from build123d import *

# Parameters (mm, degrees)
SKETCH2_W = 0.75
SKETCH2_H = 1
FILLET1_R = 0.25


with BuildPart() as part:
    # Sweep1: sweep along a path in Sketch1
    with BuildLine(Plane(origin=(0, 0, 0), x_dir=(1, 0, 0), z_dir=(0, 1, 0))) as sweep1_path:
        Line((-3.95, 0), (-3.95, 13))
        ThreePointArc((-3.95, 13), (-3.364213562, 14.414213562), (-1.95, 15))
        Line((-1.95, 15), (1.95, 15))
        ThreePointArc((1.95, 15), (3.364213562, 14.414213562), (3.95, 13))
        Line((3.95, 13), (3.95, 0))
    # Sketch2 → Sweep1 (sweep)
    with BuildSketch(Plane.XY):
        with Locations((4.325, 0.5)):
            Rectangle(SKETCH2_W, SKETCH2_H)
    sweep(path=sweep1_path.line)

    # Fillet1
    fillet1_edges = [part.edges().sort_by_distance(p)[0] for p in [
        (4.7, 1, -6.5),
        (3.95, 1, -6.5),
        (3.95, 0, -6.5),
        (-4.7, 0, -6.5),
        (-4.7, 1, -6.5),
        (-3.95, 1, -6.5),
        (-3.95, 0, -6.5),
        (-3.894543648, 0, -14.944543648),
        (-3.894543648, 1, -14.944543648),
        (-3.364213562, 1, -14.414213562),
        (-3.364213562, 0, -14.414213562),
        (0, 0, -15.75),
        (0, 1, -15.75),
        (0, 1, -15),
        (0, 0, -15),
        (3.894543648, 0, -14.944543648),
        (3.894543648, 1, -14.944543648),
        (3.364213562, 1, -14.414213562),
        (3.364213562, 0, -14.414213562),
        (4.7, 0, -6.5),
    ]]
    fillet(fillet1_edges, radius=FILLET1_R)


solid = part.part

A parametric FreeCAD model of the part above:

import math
import FreeCAD as App
import Part
import Sketcher

V = App.Vector


def edges_at(feature, points):
    """Names of the edges that pass closest to the given points."""
    edges = feature.Shape.Edges
    near = lambda p: min(range(len(edges)), key=lambda i: edges[i].distToShape(Part.Vertex(*p))[0])
    return sorted({f"Edge{near(p) + 1}" for p in points})

doc = App.newDocument("Part")
body = doc.addObject("PartDesign::Body", "Body")

# Sketch on XY plane
sketch1 = body.newObject("Sketcher::SketchObject", "Sketch")
sketch1.AttachmentSupport = (doc.getObject("XY_Plane"), [""])
sketch1.MapMode = "FlatFace"
sketch1.addGeometry([
    Part.LineSegment(V(4, 1, 0), V(4, 0, 0)),
    Part.LineSegment(V(4, 0, 0), V(4.7, 0, 0)),
    Part.LineSegment(V(4.7, 0, 0), V(4.7, 1, 0)),
    Part.LineSegment(V(4.7, 1, 0), V(4, 1, 0)),
], False)
sketch1.addConstraint([
    Sketcher.Constraint("Coincident", 0, 2, 1, 1),
    Sketcher.Constraint("Coincident", 1, 2, 2, 1),
    Sketcher.Constraint("Coincident", 2, 2, 3, 1),
    Sketcher.Constraint("Coincident", 3, 2, 0, 1),
    Sketcher.Constraint("Vertical", 0),
    Sketcher.Constraint("Horizontal", 1),
    Sketcher.Constraint("Vertical", 2),
    Sketcher.Constraint("Horizontal", 3),
    Sketcher.Constraint("PointOnObject", 0, 2, -1),
    Sketcher.Constraint("DistanceY", 0, 2, 0, 1, 1.0),
    Sketcher.Constraint("DistanceX", 1, 1, 1, 2, 0.75),
    Sketcher.Constraint("DistanceX", -1, 1, 1, 2, 4.7),
])

# Sketch on XZ plane
sketch2 = body.newObject("Sketcher::SketchObject", "Sketch001")
sketch2.AttachmentSupport = (doc.getObject("XZ_Plane"), [""])
sketch2.MapMode = "FlatFace"
sketch2.addGeometry([
    Part.LineSegment(V(-4, 0, 0), V(-4, -13, 0)),  # 0
    Part.ArcOfCircle(Part.Circle(V(-1.9, -13, 0), V(0, 0, 1), 2), math.radians(-180), math.radians(-90)),  # 1
    Part.LineSegment(V(-1.9, -15, 0), V(1.9, -15, 0)),  # 2
    Part.ArcOfCircle(Part.Circle(V(1.9, -13, 0), V(0, 0, 1), 2), math.radians(-90), math.radians(0)),  # 3
    Part.LineSegment(V(4, -13, 0), V(4, 0, 0)),  # 4
], False)
sketch2.addConstraint([
    Sketcher.Constraint("Tangent", 0, 2, 1, 1),
    Sketcher.Constraint("Tangent", 1, 2, 2, 1),
    Sketcher.Constraint("Tangent", 2, 2, 3, 1),
    Sketcher.Constraint("Tangent", 3, 2, 4, 1),
    Sketcher.Constraint("Vertical", 0),
    Sketcher.Constraint("Horizontal", 2),
    Sketcher.Constraint("Vertical", 4),
    Sketcher.Constraint("Equal", 1, 3),
    Sketcher.Constraint("Symmetric", 0, 1, 4, 2, -1, 1),
    Sketcher.Constraint("PointOnObject", 0, 1, -1),
    Sketcher.Constraint("Radius", 1, 2.0),
    Sketcher.Constraint("DistanceY", 0, 2, 0, 1, 13.0),
    Sketcher.Constraint("DistanceX", 2, 1, 2, 2, 3.9),
])
doc.recompute()

additivepipe = body.newObject("PartDesign::AdditivePipe", "AdditivePipe")
additivepipe.Profile = sketch1
additivepipe.Spine = (sketch2, ["Edge1", "Edge2", "Edge3", "Edge4", "Edge5"])
doc.recompute()

fillet = body.newObject("PartDesign::Fillet", "Fillet")
fillet.Base = (additivepipe, edges_at(additivepipe, [
    (4.7, 1, -6.5),
    (3.95, 1, -6.5),
    (3.95, 0, -6.5),
    (-4.7, 0, -6.5),
    (-4.7, 1, -6.5),
    (-3.95, 1, -6.5),
    (-3.95, 0, -6.5),
    (-3.895, 0, -14.945),
    (-3.895, 1, -14.945),
    (-3.364, 1, -14.414),
    (-3.364, 0, -14.414),
    (0, 0, -15.75),
    (0, 1, -15.75),
    (0, 1, -15),
    (0, 0, -15),
    (3.895, 0, -14.945),
    (3.895, 1, -14.945),
    (3.364, 1, -14.414),
    (3.364, 0, -14.414),
    (4.7, 0, -6.5),
]))
fillet.Radius = 0.25

doc.recompute()
